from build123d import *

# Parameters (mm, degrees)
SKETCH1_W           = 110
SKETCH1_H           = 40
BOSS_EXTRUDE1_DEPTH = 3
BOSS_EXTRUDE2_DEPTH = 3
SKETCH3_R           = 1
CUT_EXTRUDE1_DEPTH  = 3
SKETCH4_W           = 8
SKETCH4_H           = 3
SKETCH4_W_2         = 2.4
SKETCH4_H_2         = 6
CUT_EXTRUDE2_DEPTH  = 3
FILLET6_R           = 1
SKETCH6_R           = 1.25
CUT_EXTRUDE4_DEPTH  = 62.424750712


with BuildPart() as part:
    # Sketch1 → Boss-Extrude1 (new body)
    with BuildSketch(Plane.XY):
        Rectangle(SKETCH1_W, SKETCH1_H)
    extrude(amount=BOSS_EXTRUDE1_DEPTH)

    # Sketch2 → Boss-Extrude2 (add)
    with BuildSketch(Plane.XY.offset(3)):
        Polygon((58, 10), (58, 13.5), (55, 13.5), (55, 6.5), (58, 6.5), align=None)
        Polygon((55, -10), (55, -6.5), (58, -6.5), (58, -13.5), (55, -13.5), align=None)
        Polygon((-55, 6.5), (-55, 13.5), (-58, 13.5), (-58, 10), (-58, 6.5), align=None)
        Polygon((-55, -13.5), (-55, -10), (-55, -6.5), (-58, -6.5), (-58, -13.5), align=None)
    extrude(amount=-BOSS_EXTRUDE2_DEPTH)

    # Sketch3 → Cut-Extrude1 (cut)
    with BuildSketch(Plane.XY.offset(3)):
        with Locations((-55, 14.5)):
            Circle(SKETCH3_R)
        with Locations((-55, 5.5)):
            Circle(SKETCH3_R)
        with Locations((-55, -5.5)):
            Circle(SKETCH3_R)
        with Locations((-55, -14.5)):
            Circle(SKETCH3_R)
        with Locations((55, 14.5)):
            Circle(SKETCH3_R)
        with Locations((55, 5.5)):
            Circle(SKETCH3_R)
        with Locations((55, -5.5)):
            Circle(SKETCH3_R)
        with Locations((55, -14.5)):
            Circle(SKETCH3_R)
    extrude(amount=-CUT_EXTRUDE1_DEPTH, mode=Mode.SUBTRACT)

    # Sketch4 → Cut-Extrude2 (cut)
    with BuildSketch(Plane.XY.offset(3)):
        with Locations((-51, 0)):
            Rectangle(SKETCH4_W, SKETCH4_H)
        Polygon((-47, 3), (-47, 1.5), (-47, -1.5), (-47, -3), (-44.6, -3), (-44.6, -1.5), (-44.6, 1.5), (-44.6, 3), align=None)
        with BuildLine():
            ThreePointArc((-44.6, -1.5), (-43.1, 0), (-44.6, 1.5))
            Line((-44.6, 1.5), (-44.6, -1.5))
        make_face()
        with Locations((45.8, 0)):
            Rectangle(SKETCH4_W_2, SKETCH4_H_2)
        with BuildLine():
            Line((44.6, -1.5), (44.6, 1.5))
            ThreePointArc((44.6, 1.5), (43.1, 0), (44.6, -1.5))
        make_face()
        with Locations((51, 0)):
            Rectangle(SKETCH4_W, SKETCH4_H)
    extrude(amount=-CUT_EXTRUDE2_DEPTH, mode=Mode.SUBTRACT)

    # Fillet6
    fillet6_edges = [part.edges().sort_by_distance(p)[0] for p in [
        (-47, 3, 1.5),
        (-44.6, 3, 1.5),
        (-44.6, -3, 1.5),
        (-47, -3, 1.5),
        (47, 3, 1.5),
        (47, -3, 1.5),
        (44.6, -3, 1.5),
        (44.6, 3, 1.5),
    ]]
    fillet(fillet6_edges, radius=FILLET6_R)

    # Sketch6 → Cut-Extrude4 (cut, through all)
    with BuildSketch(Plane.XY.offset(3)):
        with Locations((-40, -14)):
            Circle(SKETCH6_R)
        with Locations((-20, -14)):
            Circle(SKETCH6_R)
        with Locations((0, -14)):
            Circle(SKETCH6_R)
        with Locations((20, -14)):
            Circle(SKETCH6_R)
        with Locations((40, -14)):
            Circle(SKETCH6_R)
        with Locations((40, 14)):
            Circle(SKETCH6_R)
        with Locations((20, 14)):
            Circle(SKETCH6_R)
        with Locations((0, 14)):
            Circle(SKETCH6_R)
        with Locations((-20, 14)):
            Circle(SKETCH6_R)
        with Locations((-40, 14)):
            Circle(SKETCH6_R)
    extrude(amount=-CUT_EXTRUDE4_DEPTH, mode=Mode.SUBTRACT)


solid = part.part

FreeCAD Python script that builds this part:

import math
import FreeCAD as App
import Part
import Sketcher


def edges_at(feature, points):
    """Names of the edges that pass closest to the given points."""
    edges = feature.Shape.Edges
    near = lambda p: min(range(len(edges)), key=lambda i: edges[i].distToShape(Part.Vertex(*p))[0])
    return sorted({f"Edge{near(p) + 1}" for p in points})


def add_polygon(sketch, points):
    """Adds a closed chain of lines whose ends are joined by coincident constraints."""
    first, n = sketch.GeometryCount, len(points)
    for a, b in zip(points, points[1:] + points[:1]):
        sketch.addGeometry(Part.LineSegment(App.Vector(*a, 0), App.Vector(*b, 0)), False)
    for i in range(n):
        sketch.addConstraint(Sketcher.Constraint("Coincident", first + i, 2, first + (i + 1) % n, 1))

doc = App.newDocument("Part")
params = doc.addObject("Spreadsheet::Sheet", "Params")
for row, (alias, value) in enumerate([
    ("sketch1_width", "110 mm"),
    ("sketch1_height", "40 mm"),
    ("pad1_length", "3 mm"),
    ("sketch2_width", "3 mm"),
    ("sketch2_height", "7 mm"),
    ("pad2_length", "3 mm"),
    ("sketch3_diameter", "2 mm"),
    ("pocket1_length", "3 mm"),
    ("sketch4_radius", "1.5 mm"),
    ("sketch4_width", "8 mm"),
    ("sketch4_width2", "2.4 mm"),
    ("sketch4_height", "1.5 mm"),
    ("pocket2_length", "3 mm"),
    ("fillet_radius", "1 mm"),
    ("sketch5_diameter", "2.5 mm"),
], start=1):
    params.set(f"A{row}", alias)
    params.set(f"B{row}", "=" + value)
    params.setAlias(f"B{row}", alias)

body = doc.addObject("PartDesign::Body", "Body")

sketch1 = body.newObject("Sketcher::SketchObject", "Sketch")
sketch1.AttachmentSupport = (doc.getObject("XY_Plane"), [""])
sketch1.MapMode = "FlatFace"
add_polygon(sketch1, [(-55, 20), (-55, -20), (55, -20), (55, 20)])
sketch1.addConstraint([
    Sketcher.Constraint("Vertical", 0),
    Sketcher.Constraint("Horizontal", 1),
    Sketcher.Constraint("Vertical", 2),
    Sketcher.Constraint("Horizontal", 3),
    Sketcher.Constraint("Symmetric", 0, 2, 2, 2, -1, 1),
    Sketcher.Constraint("DistanceX", 1, 1, 1, 2, 110.0),
    Sketcher.Constraint("DistanceY", 0, 2, 0, 1, 40.0),
])
sketch1.setExpression("Constraints[9]", "Params.sketch1_width")
sketch1.setExpression("Constraints[10]", "Params.sketch1_height")
pad1 = body.newObject("PartDesign::Pad", "Pad")
pad1.Profile = sketch1
pad1.setExpression("Length", "Params.pad1_length")

sketch2 = body.newObject("Sketcher::SketchObject", "Sketch001")
sketch2.AttachmentSupport = (doc.getObject("XY_Plane"), [""])
sketch2.MapMode = "FlatFace"
sketch2.AttachmentOffset = App.Placement(App.Vector(0, 0, 3), App.Rotation())
add_polygon(sketch2, [(58, 13.5), (55, 13.5), (55, 6.5), (58, 6.5)])
add_polygon(sketch2, [(55, -6.5), (55, -13.5), (58, -13.5), (58, -6.5)])
add_polygon(sketch2, [(-55, 6.5), (-55, 13.5), (-58, 13.5), (-58, 6.5)])
add_polygon(sketch2, [(-55, -13.5), (-55, -6.5), (-58, -6.5), (-58, -13.5)])
sketch2.addConstraint([
    Sketcher.Constraint("Horizontal", 0),
    Sketcher.Constraint("Vertical", 1),
    Sketcher.Constraint("Horizontal", 2),
    Sketcher.Constraint("Vertical", 3),
    Sketcher.Constraint("Vertical", 4),
    Sketcher.Constraint("Horizontal", 5),
    Sketcher.Constraint("Vertical", 6),
    Sketcher.Constraint("Horizontal", 7),
    Sketcher.Constraint("Vertical", 8),
    Sketcher.Constraint("Horizontal", 9),
    Sketcher.Constraint("Vertical", 10),
    Sketcher.Constraint("Horizontal", 11),
    Sketcher.Constraint("Vertical", 12),
    Sketcher.Constraint("Horizontal", 13),
    Sketcher.Constraint("Vertical", 14),
    Sketcher.Constraint("Horizontal", 15),
    Sketcher.Constraint("Symmetric", 4, 2, 8, 2, -1, 1),
    Sketcher.Constraint("Symmetric", 6, 2, 10, 2, -1, 1),
    Sketcher.Constraint("Symmetric", 1, 2, 12, 2, -1, 1),
    Sketcher.Constraint("Symmetric", 3, 2, 14, 2, -1, 1),
    Sketcher.Constraint("Symmetric", 0, 2, 8, 2, -2),
    Sketcher.Constraint("Symmetric", 2, 2, 10, 2, -2),
    Sketcher.Constraint("DistanceX", 0, 2, 0, 1, 3.0),
    Sketcher.Constraint("DistanceY", 1, 2, 1, 1, 7.0),
    Sketcher.Constraint("DistanceX", -1, 1, 0, 2, 55.0),
    Sketcher.Constraint("DistanceY", 4, 2, 1, 2, 20.0),
])
sketch2.setExpression("Constraints[38]", "Params.sketch2_width")
sketch2.setExpression("Constraints[39]", "Params.sketch2_height")
pad2 = body.newObject("PartDesign::Pad", "Pad001")
pad2.Profile = sketch2
pad2.setExpression("Length", "Params.pad2_length")
pad2.Reversed = True

sketch3 = body.newObject("Sketcher::SketchObject", "Sketch002")
sketch3.AttachmentSupport = (doc.getObject("XY_Plane"), [""])
sketch3.MapMode = "FlatFace"
sketch3.AttachmentOffset = App.Placement(App.Vector(0, 0, 3), App.Rotation())
sketch3.addGeometry([
    Part.Circle(App.Vector(-55, 14.5, 0), App.Vector(0, 0, 1), 1),
    Part.Circle(App.Vector(-55, 5.5, 0), App.Vector(0, 0, 1), 1),
    Part.Circle(App.Vector(-55, -5.5, 0), App.Vector(0, 0, 1), 1),
    Part.Circle(App.Vector(-55, -14.5, 0), App.Vector(0, 0, 1), 1),
    Part.Circle(App.Vector(55, 14.5, 0), App.Vector(0, 0, 1), 1),
    Part.Circle(App.Vector(55, 5.5, 0), App.Vector(0, 0, 1), 1),
    Part.Circle(App.Vector(55, -5.5, 0), App.Vector(0, 0, 1), 1),
    Part.Circle(App.Vector(55, -14.5, 0), App.Vector(0, 0, 1), 1),
], False)
sketch3.addConstraint([
    Sketcher.Constraint("Equal", 0, 1),
    Sketcher.Constraint("Equal", 1, 2),
    Sketcher.Constraint("Equal", 2, 3),
    Sketcher.Constraint("Equal", 3, 4),
    Sketcher.Constraint("Equal", 4, 5),
    Sketcher.Constraint("Equal", 5, 6),
    Sketcher.Constraint("Equal", 6, 7),
    Sketcher.Constraint("Symmetric", 3, 3, 4, 3, -1, 1),
    Sketcher.Constraint("Symmetric", 2, 3, 5, 3, -1, 1),
    Sketcher.Constraint("Symmetric", 1, 3, 6, 3, -1, 1),
    Sketcher.Constraint("Symmetric", 0, 3, 7, 3, -1, 1),
    Sketcher.Constraint("Symmetric", 0, 3, 4, 3, -2),
    Sketcher.Constraint("Symmetric", 1, 3, 5, 3, -2),
    Sketcher.Constraint("Vertical", 0, 3, 1, 3),
    Sketcher.Constraint("Diameter", 0, 2.0),
    Sketcher.Constraint("DistanceX", 0, 3, -1, 1, 55.0),
    Sketcher.Constraint("DistanceY", 1, 3, 0, 3, 9.0),
    Sketcher.Constraint("DistanceY", 2, 3, 1, 3, 11.0),
])
sketch3.setExpression("Constraints[14]", "Params.sketch3_diameter")
pocket1 = body.newObject("PartDesign::Pocket", "Pocket")
pocket1.Profile = sketch3
pocket1.setExpression("Length", "Params.pocket1_length")

sketch4 = body.newObject("Sketcher::SketchObject", "Sketch003")
sketch4.AttachmentSupport = (doc.getObject("XY_Plane"), [""])
sketch4.MapMode = "FlatFace"
sketch4.AttachmentOffset = App.Placement(App.Vector(0, 0, 3), App.Rotation())
sketch4.addGeometry([
    Part.LineSegment(App.Vector(-55, 1.5, 0), App.Vector(-55, -1.5, 0)),
    Part.LineSegment(App.Vector(-55, -1.5, 0), App.Vector(-47, -1.5, 0)),
    Part.LineSegment(App.Vector(-47, -1.5, 0), App.Vector(-47, -3, 0)),
    Part.LineSegment(App.Vector(-47, -3, 0), App.Vector(-44.6, -3, 0)),
    Part.LineSegment(App.Vector(-44.6, -3, 0), App.Vector(-44.6, -1.5, 0)),
    Part.ArcOfCircle(Part.Circle(App.Vector(-44.6, 0, 0), App.Vector(0, 0, 1), 1.5), math.radians(-90), math.radians(90)),
    Part.LineSegment(App.Vector(-44.6, 1.5, 0), App.Vector(-44.6, 3, 0)),
    Part.LineSegment(App.Vector(-44.6, 3, 0), App.Vector(-47, 3, 0)),
    Part.LineSegment(App.Vector(-47, 3, 0), App.Vector(-47, 1.5, 0)),
    Part.LineSegment(App.Vector(-47, 1.5, 0), App.Vector(-55, 1.5, 0)),
    Part.LineSegment(App.Vector(44.6, -1.5, 0), App.Vector(44.6, -3, 0)),
    Part.LineSegment(App.Vector(44.6, -3, 0), App.Vector(47, -3, 0)),
    Part.LineSegment(App.Vector(47, -3, 0), App.Vector(47, -1.5, 0)),
    Part.LineSegment(App.Vector(47, -1.5, 0), App.Vector(55, -1.5, 0)),
    Part.LineSegment(App.Vector(55, -1.5, 0), App.Vector(55, 1.5, 0)),
    Part.LineSegment(App.Vector(55, 1.5, 0), App.Vector(47, 1.5, 0)),
    Part.LineSegment(App.Vector(47, 1.5, 0), App.Vector(47, 3, 0)),
    Part.LineSegment(App.Vector(47, 3, 0), App.Vector(44.6, 3, 0)),
    Part.LineSegment(App.Vector(44.6, 3, 0), App.Vector(44.6, 1.5, 0)),
    Part.ArcOfCircle(Part.Circle(App.Vector(44.6, 0, 0), App.Vector(0, 0, 1), 1.5), math.radians(90), math.radians(270)),
], False)
sketch4.addConstraint([
    Sketcher.Constraint("Coincident", 0, 2, 1, 1),
    Sketcher.Constraint("Coincident", 1, 2, 2, 1),
    Sketcher.Constraint("Coincident", 2, 2, 3, 1),
    Sketcher.Constraint("Coincident", 3, 2, 4, 1),
    Sketcher.Constraint("Coincident", 4, 2, 5, 1),
    Sketcher.Constraint("Coincident", 5, 2, 6, 1),
    Sketcher.Constraint("Coincident", 6, 2, 7, 1),
    Sketcher.Constraint("Coincident", 7, 2, 8, 1),
    Sketcher.Constraint("Coincident", 8, 2, 9, 1),
    Sketcher.Constraint("Coincident", 9, 2, 0, 1),
    Sketcher.Constraint("Coincident", 10, 2, 11, 1),
    Sketcher.Constraint("Coincident", 11, 2, 12, 1),
    Sketcher.Constraint("Coincident", 12, 2, 13, 1),
    Sketcher.Constraint("Coincident", 13, 2, 14, 1),
    Sketcher.Constraint("Coincident", 14, 2, 15, 1),
    Sketcher.Constraint("Coincident", 15, 2, 16, 1),
    Sketcher.Constraint("Coincident", 16, 2, 17, 1),
    Sketcher.Constraint("Coincident", 17, 2, 18, 1),
    Sketcher.Constraint("Coincident", 18, 2, 19, 1),
    Sketcher.Constraint("Coincident", 19, 2, 10, 1),
    Sketcher.Constraint("Vertical", 0),
    Sketcher.Constraint("Horizontal", 1),
    Sketcher.Constraint("Vertical", 2),
    Sketcher.Constraint("Horizontal", 3),
    Sketcher.Constraint("Vertical", 4),
    Sketcher.Constraint("Vertical", 6),
    Sketcher.Constraint("Horizontal", 7),
    Sketcher.Constraint("Vertical", 8),
    Sketcher.Constraint("Horizontal", 9),
    Sketcher.Constraint("Vertical", 10),
    Sketcher.Constraint("Horizontal", 11),
    Sketcher.Constraint("Vertical", 12),
    Sketcher.Constraint("Horizontal", 13),
    Sketcher.Constraint("Vertical", 14),
    Sketcher.Constraint("Horizontal", 15),
    Sketcher.Constraint("Vertical", 16),
    Sketcher.Constraint("Horizontal", 17),
    Sketcher.Constraint("Vertical", 18),
    Sketcher.Constraint("Equal", 5, 19),
    Sketcher.Constraint("Symmetric", 5, 3, 19, 3, -1, 1),
    Sketcher.Constraint("Symmetric", 6, 2, 10, 2, -1, 1),
    Sketcher.Constraint("Symmetric", 8, 2, 12, 2, -1, 1),
    Sketcher.Constraint("Symmetric", 0, 2, 14, 2, -1, 1),
    Sketcher.Constraint("Symmetric", 2, 2, 16, 2, -1, 1),
    Sketcher.Constraint("Symmetric", 3, 2, 10, 2, -2),
    Sketcher.Constraint("Symmetric", 1, 2, 12, 2, -2),
    Sketcher.Constraint("Symmetric", 5, 2, 18, 2, -2),
    Sketcher.Constraint("Horizontal", 1, 2, 4, 2),
    Sketcher.Constraint("Vertical", 5, 3, 3, 2),
    Sketcher.Constraint("Radius", 5, 1.5),
    Sketcher.Constraint("DistanceX", 1, 1, 1, 2, 8.0),
    Sketcher.Constraint("DistanceX", 3, 1, 3, 2, 2.4),
    Sketcher.Constraint("DistanceY", 2, 2, 2, 1, 1.5),
    Sketcher.Constraint("DistanceX", 0, 2, -1, 1, 55.0),
])
sketch4.setExpression("Constraints[49]", "Params.sketch4_radius")
sketch4.setExpression("Constraints[50]", "Params.sketch4_width")
sketch4.setExpression("Constraints[51]", "Params.sketch4_width2")
sketch4.setExpression("Constraints[52]", "Params.sketch4_height")
pocket2 = body.newObject("PartDesign::Pocket", "Pocket001")
pocket2.Profile = sketch4
pocket2.setExpression("Length", "Params.pocket2_length")
doc.recompute()

fillet = body.newObject("PartDesign::Fillet", "Fillet")
fillet.Base = (pocket2, edges_at(pocket2, [
    (-47, 3, 1.5),
    (-44.6, 3, 1.5),
    (-44.6, -3, 1.5),
    (-47, -3, 1.5),
    (47, 3, 1.5),
    (47, -3, 1.5),
    (44.6, -3, 1.5),
    (44.6, 3, 1.5),
]))
fillet.setExpression("Radius", "Params.fillet_radius")

sketch5 = body.newObject("Sketcher::SketchObject", "Sketch004")
sketch5.AttachmentSupport = (doc.getObject("XY_Plane"), [""])
sketch5.MapMode = "FlatFace"
sketch5.AttachmentOffset = App.Placement(App.Vector(0, 0, 3), App.Rotation())
sketch5.addGeometry([
    Part.Circle(App.Vector(-40, -14, 0), App.Vector(0, 0, 1), 1.25),
    Part.Circle(App.Vector(-20, -14, 0), App.Vector(0, 0, 1), 1.25),
    Part.Circle(App.Vector(0, -14, 0), App.Vector(0, 0, 1), 1.25),
    Part.Circle(App.Vector(20, -14, 0), App.Vector(0, 0, 1), 1.25),
    Part.Circle(App.Vector(40, -14, 0), App.Vector(0, 0, 1), 1.25),
    Part.Circle(App.Vector(40, 14, 0), App.Vector(0, 0, 1), 1.25),
    Part.Circle(App.Vector(20, 14, 0), App.Vector(0, 0, 1), 1.25),
    Part.Circle(App.Vector(0, 14, 0), App.Vector(0, 0, 1), 1.25),
    Part.Circle(App.Vector(-20, 14, 0), App.Vector(0, 0, 1), 1.25),
    Part.Circle(App.Vector(-40, 14, 0), App.Vector(0, 0, 1), 1.25),
], False)
sketch5.addConstraint([
    Sketcher.Constraint("Equal", 0, 1),
    Sketcher.Constraint("Equal", 1, 2),
    Sketcher.Constraint("Equal", 2, 3),
    Sketcher.Constraint("Equal", 3, 4),
    Sketcher.Constraint("Equal", 4, 5),
    Sketcher.Constraint("Equal", 5, 6),
    Sketcher.Constraint("Equal", 6, 7),
    Sketcher.Constraint("Equal", 7, 8),
    Sketcher.Constraint("Equal", 8, 9),
    Sketcher.Constraint("Symmetric", 0, 3, 5, 3, -1, 1),
    Sketcher.Constraint("Symmetric", 1, 3, 6, 3, -1, 1),
    Sketcher.Constraint("Symmetric", 2, 3, 7, 3, -1, 1),
    Sketcher.Constraint("Symmetric", 3, 3, 8, 3, -1, 1),
    Sketcher.Constraint("Symmetric", 4, 3, 9, 3, -1, 1),
    Sketcher.Constraint("Symmetric", 1, 3, 3, 3, -2),
    Sketcher.Constraint("Symmetric", 0, 3, 4, 3, -2),
    Sketcher.Constraint("PointOnObject", 2, 3, -2),
    Sketcher.Constraint("Horizontal", 0, 3, 1, 3),
    Sketcher.Constraint("Horizontal", 1, 3, 2, 3),
    Sketcher.Constraint("Diameter", 0, 2.5),
    Sketcher.Constraint("DistanceX", 0, 3, -1, 1, 40.0),
    Sketcher.Constraint("DistanceY", 0, 3, -1, 1, 14.0),
    Sketcher.Constraint("DistanceX", 1, 3, -1, 1, 20.0),
])
sketch5.setExpression("Constraints[19]", "Params.sketch5_diameter")
pocket3 = body.newObject("PartDesign::Pocket", "Pocket002")
pocket3.Profile = sketch5
pocket3.Type = "ThroughAll"

doc.recompute()
